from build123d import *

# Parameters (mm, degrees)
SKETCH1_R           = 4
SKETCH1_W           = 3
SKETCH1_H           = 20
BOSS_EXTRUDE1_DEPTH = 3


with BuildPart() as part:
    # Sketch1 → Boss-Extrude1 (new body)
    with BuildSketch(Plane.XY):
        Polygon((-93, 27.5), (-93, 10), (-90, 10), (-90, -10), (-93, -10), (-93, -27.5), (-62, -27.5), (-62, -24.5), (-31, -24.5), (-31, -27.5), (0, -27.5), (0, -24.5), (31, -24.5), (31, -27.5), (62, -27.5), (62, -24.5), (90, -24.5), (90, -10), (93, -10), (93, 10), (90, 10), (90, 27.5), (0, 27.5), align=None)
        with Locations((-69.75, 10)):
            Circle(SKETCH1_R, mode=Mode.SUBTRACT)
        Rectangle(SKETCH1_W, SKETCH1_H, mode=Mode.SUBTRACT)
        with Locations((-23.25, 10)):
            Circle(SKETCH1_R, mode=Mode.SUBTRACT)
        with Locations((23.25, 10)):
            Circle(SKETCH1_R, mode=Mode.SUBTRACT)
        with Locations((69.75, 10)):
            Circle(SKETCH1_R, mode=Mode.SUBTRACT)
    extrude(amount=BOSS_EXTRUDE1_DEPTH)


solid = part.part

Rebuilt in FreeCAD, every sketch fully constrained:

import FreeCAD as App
import Part
import Sketcher

V = App.Vector
Q = App.Units.Quantity

doc = App.newDocument("Part")
params = doc.addObject("Spreadsheet::Sheet", "Params")
for row, (alias, value) in enumerate([
    ("sketch1_diameter", "8 mm"),
    ("sketch1_width", "3 mm"),
    ("sketch1_width2", "31 mm"),
    ("sketch1_height", "20 mm"),
    ("sketch1_height2", "17.5 mm"),
    ("pad1_length", "3 mm"),
], start=1):
    params.set(f"A{row}", alias)
    params.set(f"B{row}", "=" + value)
    params.setAlias(f"B{row}", alias)

body = doc.addObject("PartDesign::Body", "Body")

# Sketch on XY plane
sketch1 = body.newObject("Sketcher::SketchObject", "Sketch")
sketch1.AttachmentSupport = (doc.getObject("XY_Plane"), [""])
sketch1.MapMode = "FlatFace"
sketch1.addGeometry(Part.LineSegment(V(-93, 27.5, 0), V(-93, 10, 0)), False)
sketch1.addGeometry(Part.LineSegment(V(-93, 10, 0), V(-90, 10, 0)), False)
sketch1.addGeometry(Part.LineSegment(V(-90, 10, 0), V(-90, -10, 0)), False)
sketch1.addGeometry(Part.LineSegment(V(-90, -10, 0), V(-93, -10, 0)), False)
sketch1.addGeometry(Part.LineSegment(V(-93, -10, 0), V(-93, -27.5, 0)), False)
sketch1.addGeometry(Part.LineSegment(V(-93, -27.5, 0), V(-62, -27.5, 0)), False)
sketch1.addGeometry(Part.LineSegment(V(-62, -27.5, 0), V(-62, -24.5, 0)), False)
sketch1.addGeometry(Part.LineSegment(V(-62, -24.5, 0), V(-31, -24.5, 0)), False)
sketch1.addGeometry(Part.LineSegment(V(-31, -24.5, 0), V(-31, -27.5, 0)), False)
sketch1.addGeometry(Part.LineSegment(V(-31, -27.5, 0), V(0, -27.5, 0)), False)
sketch1.addGeometry(Part.LineSegment(V(0, -27.5, 0), V(0, -24.5, 0)), False)
sketch1.addGeometry(Part.LineSegment(V(0, -24.5, 0), V(31, -24.5, 0)), False)
sketch1.addGeometry(Part.LineSegment(V(31, -24.5, 0), V(31, -27.5, 0)), False)
sketch1.addGeometry(Part.LineSegment(V(31, -27.5, 0), V(62, -27.5, 0)), False)
sketch1.addGeometry(Part.LineSegment(V(62, -27.5, 0), V(62, -24.5, 0)), False)
sketch1.addGeometry(Part.LineSegment(V(62, -24.5, 0), V(90, -24.5, 0)), False)
sketch1.addGeometry(Part.LineSegment(V(90, -24.5, 0), V(90, -10, 0)), False)
sketch1.addGeometry(Part.LineSegment(V(90, -10, 0), V(93, -10, 0)), False)
sketch1.addGeometry(Part.LineSegment(V(93, -10, 0), V(93, 10, 0)), False)
sketch1.addGeometry(Part.LineSegment(V(93, 10, 0), V(90, 10, 0)), False)
sketch1.addGeometry(Part.LineSegment(V(90, 10, 0), V(90, 27.5, 0)), False)
sketch1.addGeometry(Part.LineSegment(V(90, 27.5, 0), V(-93, 27.5, 0)), False)
sketch1.addGeometry(Part.LineSegment(V(1.5, -10, 0), V(-1.5, -10, 0)), False)
sketch1.addGeometry(Part.LineSegment(V(-1.5, -10, 0), V(-1.5, 10, 0)), False)
sketch1.addGeometry(Part.LineSegment(V(-1.5, 10, 0), V(1.5, 10, 0)), False)
sketch1.addGeometry(Part.LineSegment(V(1.5, 10, 0), V(1.5, -10, 0)), False)
sketch1.addGeometry(Part.Circle(V(-69.8, 10, 0), V(0, 0, 1), 4), False)
sketch1.addGeometry(Part.Circle(V(-23.2, 10, 0), V(0, 0, 1), 4), False)
sketch1.addGeometry(Part.Circle(V(23.2, 10, 0), V(0, 0, 1), 4), False)
sketch1.addGeometry(Part.Circle(V(69.8, 10, 0), V(0, 0, 1), 4), False)
sketch1.addConstraint(Sketcher.Constraint("Coincident", 0, 2, 1, 1))
sketch1.addConstraint(Sketcher.Constraint("Coincident", 1, 2, 2, 1))
sketch1.addConstraint(Sketcher.Constraint("Coincident", 2, 2, 3, 1))
sketch1.addConstraint(Sketcher.Constraint("Coincident", 3, 2, 4, 1))
sketch1.addConstraint(Sketcher.Constraint("Coincident", 4, 2, 5, 1))
sketch1.addConstraint(Sketcher.Constraint("Coincident", 5, 2, 6, 1))
sketch1.addConstraint(Sketcher.Constraint("Coincident", 6, 2, 7, 1))
sketch1.addConstraint(Sketcher.Constraint("Coincident", 7, 2, 8, 1))
sketch1.addConstraint(Sketcher.Constraint("Coincident", 8, 2, 9, 1))
sketch1.addConstraint(Sketcher.Constraint("Coincident", 9, 2, 10, 1))
sketch1.addConstraint(Sketcher.Constraint("Coincident", 10, 2, 11, 1))
sketch1.addConstraint(Sketcher.Constraint("Coincident", 11, 2, 12, 1))
sketch1.addConstraint(Sketcher.Constraint("Coincident", 12, 2, 13, 1))
sketch1.addConstraint(Sketcher.Constraint("Coincident", 13, 2, 14, 1))
sketch1.addConstraint(Sketcher.Constraint("Coincident", 14, 2, 15, 1))
sketch1.addConstraint(Sketcher.Constraint("Coincident", 15, 2, 16, 1))
sketch1.addConstraint(Sketcher.Constraint("Coincident", 16, 2, 17, 1))
sketch1.addConstraint(Sketcher.Constraint("Coincident", 17, 2, 18, 1))
sketch1.addConstraint(Sketcher.Constraint("Coincident", 18, 2, 19, 1))
sketch1.addConstraint(Sketcher.Constraint("Coincident", 19, 2, 20, 1))
sketch1.addConstraint(Sketcher.Constraint("Coincident", 20, 2, 21, 1))
sketch1.addConstraint(Sketcher.Constraint("Coincident", 21, 2, 0, 1))
sketch1.addConstraint(Sketcher.Constraint("Coincident", 22, 2, 23, 1))
sketch1.addConstraint(Sketcher.Constraint("Coincident", 23, 2, 24, 1))
sketch1.addConstraint(Sketcher.Constraint("Coincident", 24, 2, 25, 1))
sketch1.addConstraint(Sketcher.Constraint("Coincident", 25, 2, 22, 1))
sketch1.addConstraint(Sketcher.Constraint("Vertical", 0))
sketch1.addConstraint(Sketcher.Constraint("Horizontal", 1))
sketch1.addConstraint(Sketcher.Constraint("Vertical", 2))
sketch1.addConstraint(Sketcher.Constraint("Horizontal", 3))
sketch1.addConstraint(Sketcher.Constraint("Vertical", 4))
sketch1.addConstraint(Sketcher.Constraint("Horizontal", 5))
sketch1.addConstraint(Sketcher.Constraint("Vertical", 6))
sketch1.addConstraint(Sketcher.Constraint("Horizontal", 7))
sketch1.addConstraint(Sketcher.Constraint("Vertical", 8))
sketch1.addConstraint(Sketcher.Constraint("Horizontal", 9))
sketch1.addConstraint(Sketcher.Constraint("Vertical", 10))
sketch1.addConstraint(Sketcher.Constraint("Horizontal", 11))
sketch1.addConstraint(Sketcher.Constraint("Vertical", 12))
sketch1.addConstraint(Sketcher.Constraint("Horizontal", 13))
sketch1.addConstraint(Sketcher.Constraint("Vertical", 14))
sketch1.addConstraint(Sketcher.Constraint("Horizontal", 15))
sketch1.addConstraint(Sketcher.Constraint("Vertical", 16))
sketch1.addConstraint(Sketcher.Constraint("Horizontal", 17))
sketch1.addConstraint(Sketcher.Constraint("Vertical", 18))
sketch1.addConstraint(Sketcher.Constraint("Horizontal", 19))
sketch1.addConstraint(Sketcher.Constraint("Vertical", 20))
sketch1.addConstraint(Sketcher.Constraint("Horizontal", 21))
sketch1.addConstraint(Sketcher.Constraint("Horizontal", 22))
sketch1.addConstraint(Sketcher.Constraint("Vertical", 23))
sketch1.addConstraint(Sketcher.Constraint("Horizontal", 24))
sketch1.addConstraint(Sketcher.Constraint("Vertical", 25))
sketch1.addConstraint(Sketcher.Constraint("Equal", 26, 27))
sketch1.addConstraint(Sketcher.Constraint("Equal", 27, 28))
sketch1.addConstraint(Sketcher.Constraint("Equal", 28, 29))
sketch1.addConstraint(Sketcher.Constraint("Symmetric", 1, 2, 16, 2, -1, 1))
sketch1.addConstraint(Sketcher.Constraint("Symmetric", 3, 2, 18, 2, -1, 1))
sketch1.addConstraint(Sketcher.Constraint("Symmetric", 22, 2, 24, 2, -1, 1))
sketch1.addConstraint(Sketcher.Constraint("Symmetric", 27, 3, 28, 3, -2))
sketch1.addConstraint(Sketcher.Constraint("Symmetric", 26, 3, 29, 3, -2))
sketch1.addConstraint(Sketcher.Constraint("Symmetric", 7, 2, 11, 2, -2))
sketch1.addConstraint(Sketcher.Constraint("Symmetric", 5, 2, 13, 2, -2))
sketch1.addConstraint(Sketcher.Constraint("Symmetric", 0, 2, 18, 2, -2))
sketch1.addConstraint(Sketcher.Constraint("PointOnObject", 9, 2, -2))
sketch1.addConstraint(Sketcher.Constraint("Horizontal", 26, 3, 27, 3))
sketch1.addConstraint(Sketcher.Constraint("Horizontal", 29, 3, 0, 2))
sketch1.addConstraint(Sketcher.Constraint("Horizontal", 5, 2, 8, 2))
sketch1.addConstraint(Sketcher.Constraint("Horizontal", 11, 2, 14, 2))
sketch1.addConstraint(Sketcher.Constraint("Horizontal", 17, 2, 22, 2))
sketch1.addConstraint(Sketcher.Constraint("Vertical", 16, 2, 19, 2))
sketch1.addConstraint(Sketcher.Constraint("Equal", 5, 7))
sketch1.addConstraint(Sketcher.Constraint("Equal", 7, 9))
sketch1.addConstraint(Sketcher.Constraint("Equal", 19, 22))
sketch1.addConstraint(Sketcher.Constraint("Equal", 0, 4))
sketch1.addConstraint(Sketcher.Constraint("Equal", 24, 6))
sketch1.addConstraint(Sketcher.Constraint("Diameter", 26, Q("8 mm")))
sketch1.addConstraint(Sketcher.Constraint("DistanceX", 1, 1, 1, 2, Q("3 mm")))
sketch1.addConstraint(Sketcher.Constraint("DistanceX", 5, 1, 5, 2, Q("31 mm")))
sketch1.addConstraint(Sketcher.Constraint("DistanceY", 2, 2, 2, 1, Q("20 mm")))
sketch1.addConstraint(Sketcher.Constraint("DistanceY", 0, 2, 0, 1, Q("17.5 mm")))
sketch1.addConstraint(Sketcher.Constraint("DistanceX", 26, 3, 28, 3, Q("93 mm")))
sketch1.addConstraint(Sketcher.Constraint("DistanceX", 26, 3, 27, 3, Q("46.5 mm")))
sketch1.setExpression("Constraints[75]", "Params.sketch1_diameter")
sketch1.setExpression("Constraints[76]", "Params.sketch1_width")
sketch1.setExpression("Constraints[77]", "Params.sketch1_width2")
sketch1.setExpression("Constraints[78]", "Params.sketch1_height")
sketch1.setExpression("Constraints[79]", "Params.sketch1_height2")
pad1 = body.newObject("PartDesign::Pad", "Pad")
pad1.Profile = sketch1
pad1.setExpression("Length", "Params.pad1_length")

doc.recompute()
